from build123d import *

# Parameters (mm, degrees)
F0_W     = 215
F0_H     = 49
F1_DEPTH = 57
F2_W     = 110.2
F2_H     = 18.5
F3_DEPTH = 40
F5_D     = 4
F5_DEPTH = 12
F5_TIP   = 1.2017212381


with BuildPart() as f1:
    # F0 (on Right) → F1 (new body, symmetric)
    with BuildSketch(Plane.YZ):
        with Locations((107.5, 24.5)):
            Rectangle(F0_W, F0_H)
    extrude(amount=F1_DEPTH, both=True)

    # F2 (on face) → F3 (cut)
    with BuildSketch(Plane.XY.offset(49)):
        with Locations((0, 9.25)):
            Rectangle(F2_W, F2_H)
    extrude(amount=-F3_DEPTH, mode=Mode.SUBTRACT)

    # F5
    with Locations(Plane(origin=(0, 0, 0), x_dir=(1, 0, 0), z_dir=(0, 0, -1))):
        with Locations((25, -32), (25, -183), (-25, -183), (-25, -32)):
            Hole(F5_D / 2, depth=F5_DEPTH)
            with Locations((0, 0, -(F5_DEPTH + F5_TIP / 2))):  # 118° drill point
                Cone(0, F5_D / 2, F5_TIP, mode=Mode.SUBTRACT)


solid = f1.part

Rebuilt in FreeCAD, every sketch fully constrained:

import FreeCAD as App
import Part
import Sketcher

V = App.Vector
Q = App.Units.Quantity


def add_polygon(sketch, points):
    """Adds a closed chain of lines whose ends are joined by coincident constraints."""
    first, n = sketch.GeometryCount, len(points)
    for a, b in zip(points, points[1:] + points[:1]):
        sketch.addGeometry(Part.LineSegment(App.Vector(*a, 0), App.Vector(*b, 0)), False)
    for i in range(n):
        sketch.addConstraint(Sketcher.Constraint("Coincident", first + i, 2, first + (i + 1) % n, 1))

doc = App.newDocument("Part")
body = doc.addObject("PartDesign::Body", "Body")

# Sketch on YZ plane
sketch1 = body.newObject("Sketcher::SketchObject", "Sketch")
sketch1.AttachmentSupport = (doc.getObject("YZ_Plane"), [""])
sketch1.MapMode = "FlatFace"
add_polygon(sketch1, [(0, 49), (0, 0), (215, 0), (215, 49)])  # lines 0-3
sketch1.addConstraint([
    Sketcher.Constraint("Vertical", 0),
    Sketcher.Constraint("Horizontal", 1),
    Sketcher.Constraint("Vertical", 2),
    Sketcher.Constraint("Horizontal", 3),
    Sketcher.Constraint("Coincident", 0, 2, -1, 1),
    Sketcher.Constraint("DistanceX", 1, 1, 1, 2, Q("215 mm")),
    Sketcher.Constraint("DistanceY", 0, 2, 0, 1, Q("49 mm")),
])
pad1 = body.newObject("PartDesign::Pad", "Pad")
pad1.Profile = sketch1
pad1.Length = 114
pad1.Midplane = True

# Sketch on XY plane
sketch2 = body.newObject("Sketcher::SketchObject", "Sketch001")
sketch2.AttachmentSupport = (doc.getObject("XY_Plane"), [""])
sketch2.MapMode = "FlatFace"
sketch2.AttachmentOffset = App.Placement(V(0, 0, 49), App.Rotation())
add_polygon(sketch2, [(-55.1, 18.5), (-55.1, 0), (55.1, 0), (55.1, 18.5)])  # lines 0-3
sketch2.addConstraint([
    Sketcher.Constraint("Vertical", 0),
    Sketcher.Constraint("Horizontal", 1),
    Sketcher.Constraint("Vertical", 2),
    Sketcher.Constraint("Horizontal", 3),
    Sketcher.Constraint("Symmetric", 0, 2, 1, 2, -1, 1),
    Sketcher.Constraint("DistanceX", 1, 1, 1, 2, Q("110.2 mm")),
    Sketcher.Constraint("DistanceY", 0, 2, 0, 1, Q("18.5 mm")),
])
pocket1 = body.newObject("PartDesign::Pocket", "Pocket")
pocket1.Profile = sketch2
pocket1.Length = 40

# Sketch on XY plane
sketch3 = body.newObject("Sketcher::SketchObject", "Sketch002")
sketch3.AttachmentSupport = (doc.getObject("XY_Plane"), [""])
sketch3.MapMode = "FlatFace"
sketch3.addGeometry([
    Part.Circle(V(25, 32, 0), V(0, 0, 1), 2),
    Part.Circle(V(25, 183, 0), V(0, 0, 1), 2),
    Part.Circle(V(-25, 183, 0), V(0, 0, 1), 2),
    Part.Circle(V(-25, 32, 0), V(0, 0, 1), 2),
], False)
sketch3.addConstraint([
    Sketcher.Constraint("Equal", 0, 1),
    Sketcher.Constraint("Equal", 1, 2),
    Sketcher.Constraint("Equal", 2, 3),
    Sketcher.Constraint("Symmetric", 1, 3, 2, 3, -2),
    Sketcher.Constraint("Symmetric", 0, 3, 3, 3, -2),
    Sketcher.Constraint("Vertical", 0, 3, 1, 3),
    Sketcher.Constraint("Diameter", 0, Q("4 mm")),
    Sketcher.Constraint("DistanceX", -1, 1, 0, 3, Q("25 mm")),
    Sketcher.Constraint("DistanceY", -1, 1, 0, 3, Q("32 mm")),
    Sketcher.Constraint("DistanceY", -1, 1, 1, 3, Q("183 mm")),
])
doc.recompute()
hole = body.newObject("PartDesign::Hole", "Hole")
hole.Profile = sketch3
hole.ThreadType = "None"
hole.Diameter = 4
hole.DepthType = "Dimension"
hole.Depth = 12
hole.DrillPoint = "Angled"
hole.DrillPointAngle = 118
hole.Reversed = True

doc.recompute()
